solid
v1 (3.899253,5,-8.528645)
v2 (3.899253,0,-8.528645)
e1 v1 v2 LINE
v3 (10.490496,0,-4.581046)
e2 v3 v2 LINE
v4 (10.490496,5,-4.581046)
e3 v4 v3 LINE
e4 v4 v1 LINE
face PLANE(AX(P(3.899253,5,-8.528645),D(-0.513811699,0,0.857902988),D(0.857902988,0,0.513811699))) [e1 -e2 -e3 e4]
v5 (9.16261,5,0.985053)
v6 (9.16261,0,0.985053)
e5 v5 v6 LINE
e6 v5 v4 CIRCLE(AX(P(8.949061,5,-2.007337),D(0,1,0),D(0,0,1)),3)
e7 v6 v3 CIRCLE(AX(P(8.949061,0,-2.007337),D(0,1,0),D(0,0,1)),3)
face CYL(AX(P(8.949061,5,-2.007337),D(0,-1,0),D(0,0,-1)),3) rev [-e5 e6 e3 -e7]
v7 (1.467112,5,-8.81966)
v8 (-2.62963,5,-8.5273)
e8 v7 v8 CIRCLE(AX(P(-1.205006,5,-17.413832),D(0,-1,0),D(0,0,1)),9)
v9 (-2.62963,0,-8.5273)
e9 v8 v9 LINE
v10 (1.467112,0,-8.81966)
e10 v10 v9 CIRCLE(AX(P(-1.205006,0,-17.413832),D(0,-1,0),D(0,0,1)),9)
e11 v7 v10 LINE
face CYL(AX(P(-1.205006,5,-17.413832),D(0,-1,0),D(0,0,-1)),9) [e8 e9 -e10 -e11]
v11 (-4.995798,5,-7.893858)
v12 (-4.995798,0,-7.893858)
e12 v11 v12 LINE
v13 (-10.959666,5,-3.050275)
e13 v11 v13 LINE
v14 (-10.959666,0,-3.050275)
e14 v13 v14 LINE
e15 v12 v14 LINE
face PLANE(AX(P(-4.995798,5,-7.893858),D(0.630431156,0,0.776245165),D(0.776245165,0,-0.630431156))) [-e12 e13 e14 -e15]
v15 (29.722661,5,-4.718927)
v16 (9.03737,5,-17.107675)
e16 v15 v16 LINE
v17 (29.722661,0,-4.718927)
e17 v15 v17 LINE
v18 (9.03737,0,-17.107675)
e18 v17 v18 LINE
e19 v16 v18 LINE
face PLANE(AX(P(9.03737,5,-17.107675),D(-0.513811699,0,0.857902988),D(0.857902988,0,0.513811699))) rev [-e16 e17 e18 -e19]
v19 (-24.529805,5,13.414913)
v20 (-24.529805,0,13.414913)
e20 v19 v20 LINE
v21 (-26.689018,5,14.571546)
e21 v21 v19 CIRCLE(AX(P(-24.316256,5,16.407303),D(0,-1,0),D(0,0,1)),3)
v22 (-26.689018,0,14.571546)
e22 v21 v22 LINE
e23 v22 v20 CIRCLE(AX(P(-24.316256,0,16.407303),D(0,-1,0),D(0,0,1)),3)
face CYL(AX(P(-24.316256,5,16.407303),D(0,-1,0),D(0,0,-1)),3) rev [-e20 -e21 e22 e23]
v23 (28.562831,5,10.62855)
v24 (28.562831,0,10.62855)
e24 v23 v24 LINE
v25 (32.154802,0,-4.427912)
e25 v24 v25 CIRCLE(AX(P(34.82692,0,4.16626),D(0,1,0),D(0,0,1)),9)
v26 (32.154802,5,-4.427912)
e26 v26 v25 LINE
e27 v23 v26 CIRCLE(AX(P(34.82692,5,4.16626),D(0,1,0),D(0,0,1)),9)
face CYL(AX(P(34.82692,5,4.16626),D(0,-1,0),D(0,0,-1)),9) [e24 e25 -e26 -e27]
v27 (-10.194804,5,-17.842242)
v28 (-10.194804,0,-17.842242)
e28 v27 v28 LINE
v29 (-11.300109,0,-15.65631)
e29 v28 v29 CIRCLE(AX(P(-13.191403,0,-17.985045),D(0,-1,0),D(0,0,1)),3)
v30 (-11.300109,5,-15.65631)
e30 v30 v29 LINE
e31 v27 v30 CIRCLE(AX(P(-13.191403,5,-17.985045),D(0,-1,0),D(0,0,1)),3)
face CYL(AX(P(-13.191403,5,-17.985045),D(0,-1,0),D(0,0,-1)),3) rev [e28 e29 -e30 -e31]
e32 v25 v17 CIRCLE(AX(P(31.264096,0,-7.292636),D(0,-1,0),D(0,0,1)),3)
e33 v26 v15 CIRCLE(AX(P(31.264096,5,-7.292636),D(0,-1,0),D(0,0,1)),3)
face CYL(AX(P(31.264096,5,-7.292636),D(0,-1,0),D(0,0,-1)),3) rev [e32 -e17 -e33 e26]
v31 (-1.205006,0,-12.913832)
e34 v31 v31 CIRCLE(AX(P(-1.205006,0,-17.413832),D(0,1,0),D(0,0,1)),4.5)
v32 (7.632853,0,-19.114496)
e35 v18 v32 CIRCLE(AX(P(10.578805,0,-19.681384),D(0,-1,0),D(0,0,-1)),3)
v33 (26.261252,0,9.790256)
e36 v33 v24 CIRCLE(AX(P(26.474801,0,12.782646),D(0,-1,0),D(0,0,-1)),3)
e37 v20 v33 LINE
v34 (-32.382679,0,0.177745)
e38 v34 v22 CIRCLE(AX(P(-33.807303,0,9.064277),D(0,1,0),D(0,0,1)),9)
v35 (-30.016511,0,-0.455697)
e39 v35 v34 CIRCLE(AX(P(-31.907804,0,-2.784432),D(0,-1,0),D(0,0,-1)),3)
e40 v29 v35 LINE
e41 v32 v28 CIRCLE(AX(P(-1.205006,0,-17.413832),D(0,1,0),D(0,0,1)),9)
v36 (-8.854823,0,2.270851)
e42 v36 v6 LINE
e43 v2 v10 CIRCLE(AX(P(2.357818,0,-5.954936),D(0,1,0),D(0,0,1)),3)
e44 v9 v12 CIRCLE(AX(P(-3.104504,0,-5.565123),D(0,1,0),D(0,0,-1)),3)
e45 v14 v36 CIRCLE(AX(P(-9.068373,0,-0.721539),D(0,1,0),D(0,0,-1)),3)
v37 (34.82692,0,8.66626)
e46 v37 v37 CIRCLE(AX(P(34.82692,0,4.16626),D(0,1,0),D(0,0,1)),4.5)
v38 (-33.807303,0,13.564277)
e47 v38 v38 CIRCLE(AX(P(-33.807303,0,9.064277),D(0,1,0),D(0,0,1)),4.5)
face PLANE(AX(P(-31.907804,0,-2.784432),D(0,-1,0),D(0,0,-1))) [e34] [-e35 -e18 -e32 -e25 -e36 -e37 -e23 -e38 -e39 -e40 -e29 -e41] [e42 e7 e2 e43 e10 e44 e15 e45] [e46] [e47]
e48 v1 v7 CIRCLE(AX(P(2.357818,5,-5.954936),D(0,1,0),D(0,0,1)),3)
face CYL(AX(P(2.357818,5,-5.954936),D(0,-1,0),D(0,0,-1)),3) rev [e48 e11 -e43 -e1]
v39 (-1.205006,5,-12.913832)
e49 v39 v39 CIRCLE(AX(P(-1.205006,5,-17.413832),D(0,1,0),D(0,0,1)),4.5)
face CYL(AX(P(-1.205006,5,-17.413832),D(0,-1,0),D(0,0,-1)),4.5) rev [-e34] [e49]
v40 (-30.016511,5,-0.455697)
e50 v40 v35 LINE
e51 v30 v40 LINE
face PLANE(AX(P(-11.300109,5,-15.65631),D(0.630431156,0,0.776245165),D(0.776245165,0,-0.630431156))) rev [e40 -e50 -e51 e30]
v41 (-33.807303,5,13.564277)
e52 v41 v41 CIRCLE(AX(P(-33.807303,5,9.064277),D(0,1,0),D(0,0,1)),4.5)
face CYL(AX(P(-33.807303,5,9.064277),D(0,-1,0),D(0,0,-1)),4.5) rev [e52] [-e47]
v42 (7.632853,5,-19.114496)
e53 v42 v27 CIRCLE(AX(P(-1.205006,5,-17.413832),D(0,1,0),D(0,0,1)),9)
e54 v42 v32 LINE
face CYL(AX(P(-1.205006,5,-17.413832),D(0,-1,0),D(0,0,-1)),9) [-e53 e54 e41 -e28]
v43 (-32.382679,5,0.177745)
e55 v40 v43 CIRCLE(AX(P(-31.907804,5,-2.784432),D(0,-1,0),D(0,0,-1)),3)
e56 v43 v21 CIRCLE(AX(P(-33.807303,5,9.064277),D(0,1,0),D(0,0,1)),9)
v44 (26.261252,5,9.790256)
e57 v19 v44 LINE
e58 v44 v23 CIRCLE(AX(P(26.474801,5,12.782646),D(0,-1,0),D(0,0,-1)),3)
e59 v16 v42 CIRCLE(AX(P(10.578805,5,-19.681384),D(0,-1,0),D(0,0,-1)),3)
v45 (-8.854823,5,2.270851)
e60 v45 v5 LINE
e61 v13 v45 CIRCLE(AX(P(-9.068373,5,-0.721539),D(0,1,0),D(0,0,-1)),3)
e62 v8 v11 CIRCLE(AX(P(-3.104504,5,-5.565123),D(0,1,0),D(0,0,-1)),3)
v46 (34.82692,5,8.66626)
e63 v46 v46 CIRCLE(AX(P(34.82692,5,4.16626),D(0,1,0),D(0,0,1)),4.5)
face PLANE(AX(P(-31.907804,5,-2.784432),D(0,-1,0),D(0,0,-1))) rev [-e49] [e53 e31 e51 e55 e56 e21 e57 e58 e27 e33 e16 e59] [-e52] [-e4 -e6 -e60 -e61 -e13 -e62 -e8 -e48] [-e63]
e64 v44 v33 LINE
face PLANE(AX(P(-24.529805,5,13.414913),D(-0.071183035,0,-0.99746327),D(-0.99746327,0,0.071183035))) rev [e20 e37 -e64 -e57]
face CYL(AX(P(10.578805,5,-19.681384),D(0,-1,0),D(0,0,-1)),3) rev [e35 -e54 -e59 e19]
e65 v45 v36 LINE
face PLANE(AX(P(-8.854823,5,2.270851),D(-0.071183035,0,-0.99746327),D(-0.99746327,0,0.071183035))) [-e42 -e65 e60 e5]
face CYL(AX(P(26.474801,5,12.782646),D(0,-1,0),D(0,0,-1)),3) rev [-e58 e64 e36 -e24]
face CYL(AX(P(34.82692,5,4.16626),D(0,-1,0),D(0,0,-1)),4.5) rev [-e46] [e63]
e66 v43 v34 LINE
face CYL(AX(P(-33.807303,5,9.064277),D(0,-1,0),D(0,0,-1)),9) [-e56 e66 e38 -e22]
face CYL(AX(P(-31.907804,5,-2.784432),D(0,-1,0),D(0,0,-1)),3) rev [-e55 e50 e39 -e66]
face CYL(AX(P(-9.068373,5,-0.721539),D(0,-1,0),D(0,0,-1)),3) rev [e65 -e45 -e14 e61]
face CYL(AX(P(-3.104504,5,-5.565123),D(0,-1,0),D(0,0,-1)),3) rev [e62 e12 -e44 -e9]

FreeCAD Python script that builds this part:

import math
import FreeCAD as App
import Part
import Sketcher
from FreeCAD import Vector

doc = App.newDocument("Part")
params = doc.addObject("Spreadsheet::Sheet", "Params")
for row, (alias, value) in enumerate([
    ("sketch1_diameter", "9 mm"),
    ("sketch1_radius", "3 mm"),
    ("sketch1_radius2", "9 mm"),
    ("pad1_length", "5 mm"),
], start=1):
    params.set(f"A{row}", alias)
    params.set(f"B{row}", "=" + value)
    params.setAlias(f"B{row}", alias)

body = doc.addObject("PartDesign::Body", "Body")

# Sketch on XZ plane
sketch1 = body.newObject("Sketcher::SketchObject", "Sketch")
sketch1.AttachmentSupport = (doc.getObject("XZ_Plane"), [""])
sketch1.MapMode = "FlatFace"
sketch1.addGeometry(Part.LineSegment(Vector(-24.5, 13.4, 0), Vector(26.3, 9.8, 0)), False)
sketch1.addGeometry(Part.ArcOfCircle(Part.Circle(Vector(26.5, 12.8, 0), Vector(0, 0, 1), 3), math.radians(-94), math.radians(-46)), False)
sketch1.addGeometry(Part.ArcOfCircle(Part.Circle(Vector(34.8, 4.2, 0), Vector(0, 0, 1), 9), math.radians(-107), math.radians(134)), False)
sketch1.addGeometry(Part.ArcOfCircle(Part.Circle(Vector(31.3, -7.3, 0), Vector(0, 0, 1), 3), math.radians(73), math.radians(121)), False)
sketch1.addGeometry(Part.LineSegment(Vector(29.7, -4.7, 0), Vector(9, -17.1, 0)), False)
sketch1.addGeometry(Part.ArcOfCircle(Part.Circle(Vector(10.6, -19.7, 0), Vector(0, 0, 1), 3), math.radians(121), math.radians(169)), False)
sketch1.addGeometry(Part.ArcOfCircle(Part.Circle(Vector(-1.2, -17.4, 0), Vector(0, 0, 1), 9), math.radians(-177), math.radians(-11)), False)
sketch1.addGeometry(Part.ArcOfCircle(Part.Circle(Vector(-13.2, -18, 0), Vector(0, 0, 1), 3), math.radians(3), math.radians(51)), False)
sketch1.addGeometry(Part.LineSegment(Vector(-11.3, -15.7, 0), Vector(-30, -0.5, 0)), False)
sketch1.addGeometry(Part.ArcOfCircle(Part.Circle(Vector(-31.9, -2.8, 0), Vector(0, 0, 1), 3), math.radians(51), math.radians(99)), False)
sketch1.addGeometry(Part.ArcOfCircle(Part.Circle(Vector(-33.8, 9.1, 0), Vector(0, 0, 1), 9), math.radians(38), math.radians(279)), False)
sketch1.addGeometry(Part.ArcOfCircle(Part.Circle(Vector(-24.3, 16.4, 0), Vector(0, 0, 1), 3), math.radians(-142), math.radians(-94)), False)
sketch1.addGeometry(Part.Circle(Vector(-33.8, 9.1, 0), Vector(0, 0, 1), 4.5), False)
sketch1.addGeometry(Part.LineSegment(Vector(9.2, 1, 0), Vector(-8.9, 2.3, 0)), False)
sketch1.addGeometry(Part.ArcOfCircle(Part.Circle(Vector(-9.1, -0.7, 0), Vector(0, 0, 1), 3), math.radians(86), math.radians(231)), False)
sketch1.addGeometry(Part.LineSegment(Vector(-11, -3.1, 0), Vector(-5, -7.9, 0)), False)
sketch1.addGeometry(Part.ArcOfCircle(Part.Circle(Vector(-3.1, -5.6, 0), Vector(0, 0, 1), 3), math.radians(-129), math.radians(-81)), False)
sketch1.addGeometry(Part.ArcOfCircle(Part.Circle(Vector(-1.2, -17.4, 0), Vector(0, 0, 1), 9), math.radians(73), math.radians(99)), False)
sketch1.addGeometry(Part.ArcOfCircle(Part.Circle(Vector(2.4, -6, 0), Vector(0, 0, 1), 3), math.radians(-107), math.radians(-59)), False)
sketch1.addGeometry(Part.LineSegment(Vector(3.9, -8.5, 0), Vector(10.5, -4.6, 0)), False)
sketch1.addGeometry(Part.ArcOfCircle(Part.Circle(Vector(8.9, -2, 0), Vector(0, 0, 1), 3), math.radians(-59), math.radians(86)), False)
sketch1.addGeometry(Part.Circle(Vector(34.8, 4.2, 0), Vector(0, 0, 1), 4.5), False)
sketch1.addGeometry(Part.Circle(Vector(-1.2, -17.4, 0), Vector(0, 0, 1), 4.5), False)
sketch1.addConstraint(Sketcher.Constraint("Tangent", 0, 2, 1, 1))
sketch1.addConstraint(Sketcher.Constraint("Tangent", 1, 2, 2, 2))
sketch1.addConstraint(Sketcher.Constraint("Tangent", 2, 1, 3, 1))
sketch1.addConstraint(Sketcher.Constraint("Tangent", 3, 2, 4, 1))
sketch1.addConstraint(Sketcher.Constraint("Tangent", 4, 2, 5, 1))
sketch1.addConstraint(Sketcher.Constraint("Tangent", 5, 2, 6, 2))
sketch1.addConstraint(Sketcher.Constraint("Tangent", 6, 1, 7, 1))
sketch1.addConstraint(Sketcher.Constraint("Tangent", 7, 2, 8, 1))
sketch1.addConstraint(Sketcher.Constraint("Tangent", 8, 2, 9, 1))
sketch1.addConstraint(Sketcher.Constraint("Tangent", 9, 2, 10, 2))
sketch1.addConstraint(Sketcher.Constraint("Tangent", 10, 1, 11, 1))
sketch1.addConstraint(Sketcher.Constraint("Tangent", 11, 2, 0, 1))
sketch1.addConstraint(Sketcher.Constraint("Tangent", 13, 2, 14, 1))
sketch1.addConstraint(Sketcher.Constraint("Tangent", 14, 2, 15, 1))
sketch1.addConstraint(Sketcher.Constraint("Tangent", 15, 2, 16, 1))
sketch1.addConstraint(Sketcher.Constraint("Tangent", 16, 2, 17, 2))
sketch1.addConstraint(Sketcher.Constraint("Tangent", 17, 1, 18, 1))
sketch1.addConstraint(Sketcher.Constraint("Tangent", 18, 2, 19, 1))
sketch1.addConstraint(Sketcher.Constraint("Tangent", 19, 2, 20, 1))
sketch1.addConstraint(Sketcher.Constraint("Tangent", 20, 2, 13, 1))
sketch1.addConstraint(Sketcher.Constraint("Coincident", 12, 3, 10, 3))
sketch1.addConstraint(Sketcher.Constraint("Coincident", 17, 3, 6, 3))
sketch1.addConstraint(Sketcher.Constraint("Coincident", 21, 3, 2, 3))
sketch1.addConstraint(Sketcher.Constraint("Coincident", 22, 3, 6, 3))
sketch1.addConstraint(Sketcher.Constraint("Equal", 1, 3))
sketch1.addConstraint(Sketcher.Constraint("Equal", 3, 5))
sketch1.addConstraint(Sketcher.Constraint("Equal", 2, 6))
sketch1.addConstraint(Sketcher.Constraint("Equal", 5, 7))
sketch1.addConstraint(Sketcher.Constraint("Equal", 7, 9))
sketch1.addConstraint(Sketcher.Constraint("Equal", 6, 10))
sketch1.addConstraint(Sketcher.Constraint("Equal", 9, 11))
sketch1.addConstraint(Sketcher.Constraint("Equal", 11, 14))
sketch1.addConstraint(Sketcher.Constraint("Equal", 14, 16))
sketch1.addConstraint(Sketcher.Constraint("Equal", 10, 17))
sketch1.addConstraint(Sketcher.Constraint("Equal", 16, 18))
sketch1.addConstraint(Sketcher.Constraint("Equal", 18, 20))
sketch1.addConstraint(Sketcher.Constraint("Equal", 12, 21))
sketch1.addConstraint(Sketcher.Constraint("Equal", 21, 22))
sketch1.addConstraint(Sketcher.Constraint("Parallel", 0, 13))
sketch1.addConstraint(Sketcher.Constraint("Parallel", 8, 15))
sketch1.addConstraint(Sketcher.Constraint("Parallel", 4, 19))
sketch1.addConstraint(Sketcher.Constraint("Equal", 4, 8))
sketch1.addConstraint(Sketcher.Constraint("Equal", 15, 19))
sketch1.addConstraint(Sketcher.Constraint("Diameter", 12, 9.0))
sketch1.addConstraint(Sketcher.Constraint("Radius", 1, 3.0))
sketch1.addConstraint(Sketcher.Constraint("Radius", 2, 9.0))
sketch1.addConstraint(Sketcher.Constraint("DistanceY", 8, 2, 11, 3, 16.862999))
sketch1.addConstraint(Sketcher.Constraint("DistanceX", -1, 1, 1, 3, 26.474801))
sketch1.addConstraint(Sketcher.Constraint("DistanceX", -1, 1, 2, 1, 32.154802))
sketch1.addConstraint(Sketcher.Constraint("DistanceY", 16, 2, -1, 1, 8.5273))
sketch1.addConstraint(Sketcher.Constraint("DistanceX", 6, 3, 3, 3, 32.469102))
sketch1.addConstraint(Sketcher.Constraint("DistanceX", 7, 3, 3, 3, 44.455499))
sketch1.addConstraint(Sketcher.Constraint("DistanceX", 9, 3, 7, 3, 18.716401))
sketch1.addConstraint(Sketcher.Constraint("DistanceY", 6, 3, 9, 3, 14.6294))
sketch1.addConstraint(Sketcher.Constraint("DistanceX", 10, 3, 9, 3, 1.899499))
sketch1.addConstraint(Sketcher.Constraint("DistanceX", 16, 3, 6, 3, 1.899499))
sketch1.addConstraint(Sketcher.Constraint("DistanceY", 18, 3, 20, 3, 3.9476))
sketch1.addConstraint(Sketcher.Constraint("DistanceX", 18, 3, 21, 3, 32.469102))
sketch1.addConstraint(Sketcher.Constraint("DistanceY", 17, 1, 15, 2, 0.925802))
sketch1.setExpression("Constraints[43]", "Params.sketch1_diameter")
sketch1.setExpression("Constraints[44]", "Params.sketch1_radius")
sketch1.setExpression("Constraints[45]", "Params.sketch1_radius2")
pad1 = body.newObject("PartDesign::Pad", "Pad")
pad1.Profile = sketch1
pad1.setExpression("Length", "Params.pad1_length")
pad1.Reversed = True

doc.recompute()
